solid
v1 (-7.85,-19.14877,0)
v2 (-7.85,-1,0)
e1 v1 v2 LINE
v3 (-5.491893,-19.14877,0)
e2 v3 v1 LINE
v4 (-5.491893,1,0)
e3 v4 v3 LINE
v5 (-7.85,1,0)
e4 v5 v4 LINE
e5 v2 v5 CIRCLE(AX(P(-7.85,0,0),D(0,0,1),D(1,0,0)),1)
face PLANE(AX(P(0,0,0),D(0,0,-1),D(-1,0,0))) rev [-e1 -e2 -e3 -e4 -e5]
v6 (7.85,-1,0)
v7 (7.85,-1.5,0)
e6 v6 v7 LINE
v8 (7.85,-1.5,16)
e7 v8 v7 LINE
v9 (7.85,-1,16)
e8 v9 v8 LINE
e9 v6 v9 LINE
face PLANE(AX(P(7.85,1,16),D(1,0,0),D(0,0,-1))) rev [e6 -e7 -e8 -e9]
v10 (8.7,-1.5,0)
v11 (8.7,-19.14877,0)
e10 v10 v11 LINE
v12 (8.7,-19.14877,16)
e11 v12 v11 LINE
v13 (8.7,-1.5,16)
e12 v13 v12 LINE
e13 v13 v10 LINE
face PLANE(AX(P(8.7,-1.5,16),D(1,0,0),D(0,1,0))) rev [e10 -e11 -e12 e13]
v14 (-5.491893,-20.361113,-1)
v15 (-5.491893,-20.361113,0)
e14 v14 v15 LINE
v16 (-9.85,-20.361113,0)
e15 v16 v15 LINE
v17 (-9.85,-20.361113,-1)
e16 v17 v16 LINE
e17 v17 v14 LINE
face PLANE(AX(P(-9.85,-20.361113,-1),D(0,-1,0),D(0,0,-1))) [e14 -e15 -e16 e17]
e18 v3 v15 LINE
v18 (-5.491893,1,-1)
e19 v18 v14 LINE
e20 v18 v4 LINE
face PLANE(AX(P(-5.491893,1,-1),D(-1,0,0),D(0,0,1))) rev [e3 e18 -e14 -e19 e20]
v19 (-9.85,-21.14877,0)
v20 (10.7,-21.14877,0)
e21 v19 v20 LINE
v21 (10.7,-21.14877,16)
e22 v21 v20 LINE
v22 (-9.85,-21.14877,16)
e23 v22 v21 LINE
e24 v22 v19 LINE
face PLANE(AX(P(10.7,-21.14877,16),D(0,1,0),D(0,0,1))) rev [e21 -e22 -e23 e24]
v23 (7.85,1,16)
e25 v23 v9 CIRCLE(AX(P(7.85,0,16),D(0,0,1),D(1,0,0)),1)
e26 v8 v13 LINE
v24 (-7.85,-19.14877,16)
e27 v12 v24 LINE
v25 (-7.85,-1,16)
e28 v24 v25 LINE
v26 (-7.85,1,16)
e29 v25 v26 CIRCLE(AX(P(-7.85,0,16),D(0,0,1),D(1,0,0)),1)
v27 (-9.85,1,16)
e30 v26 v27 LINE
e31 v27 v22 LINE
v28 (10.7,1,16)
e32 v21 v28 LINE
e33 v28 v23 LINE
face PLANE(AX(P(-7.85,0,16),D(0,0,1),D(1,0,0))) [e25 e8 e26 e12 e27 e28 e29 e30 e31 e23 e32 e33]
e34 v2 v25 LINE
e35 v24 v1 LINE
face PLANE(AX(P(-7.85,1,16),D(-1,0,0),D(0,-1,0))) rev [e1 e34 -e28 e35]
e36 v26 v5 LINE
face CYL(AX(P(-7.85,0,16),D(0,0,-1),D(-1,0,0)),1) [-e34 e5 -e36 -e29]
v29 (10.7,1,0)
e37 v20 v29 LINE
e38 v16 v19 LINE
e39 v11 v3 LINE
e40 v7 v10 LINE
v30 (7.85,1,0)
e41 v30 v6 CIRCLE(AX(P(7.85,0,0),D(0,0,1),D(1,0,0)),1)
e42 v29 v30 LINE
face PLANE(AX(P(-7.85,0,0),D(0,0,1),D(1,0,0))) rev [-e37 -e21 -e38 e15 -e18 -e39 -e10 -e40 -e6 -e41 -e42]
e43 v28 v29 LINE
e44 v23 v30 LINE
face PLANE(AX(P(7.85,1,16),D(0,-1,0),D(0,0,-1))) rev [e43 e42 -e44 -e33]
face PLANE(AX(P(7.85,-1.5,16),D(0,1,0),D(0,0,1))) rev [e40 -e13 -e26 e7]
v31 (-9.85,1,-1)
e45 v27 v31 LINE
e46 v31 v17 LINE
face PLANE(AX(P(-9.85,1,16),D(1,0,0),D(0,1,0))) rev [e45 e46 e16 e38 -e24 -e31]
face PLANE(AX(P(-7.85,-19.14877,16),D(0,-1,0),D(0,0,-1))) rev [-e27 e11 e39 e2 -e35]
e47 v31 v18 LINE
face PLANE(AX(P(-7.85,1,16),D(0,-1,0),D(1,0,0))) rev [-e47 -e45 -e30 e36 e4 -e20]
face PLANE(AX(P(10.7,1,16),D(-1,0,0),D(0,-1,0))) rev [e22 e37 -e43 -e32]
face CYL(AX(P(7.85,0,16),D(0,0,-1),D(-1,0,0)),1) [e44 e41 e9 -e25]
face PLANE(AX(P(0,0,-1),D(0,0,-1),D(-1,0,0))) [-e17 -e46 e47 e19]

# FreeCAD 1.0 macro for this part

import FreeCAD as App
import Part
import Sketcher

V = App.Vector
Q = App.Units.Quantity

doc = App.newDocument("Part")
body = doc.addObject("PartDesign::Body", "Body")

# Sketch on XY plane
sketch1 = body.newObject("Sketcher::SketchObject", "Sketch")
sketch1.AttachmentSupport = (doc.getObject("XY_Plane"), [""])
sketch1.MapMode = "FlatFace"
sketch1.addGeometry(Part.Circle(V(-7.8, 0, 0), V(0, 0, 1), 1), False)
sketch1.addConstraint(Sketcher.Constraint("PointOnObject", 0, 3, -1))
sketch1.addConstraint(Sketcher.Constraint("Diameter", 0, Q("2 mm")))
sketch1.addConstraint(Sketcher.Constraint("DistanceX", 0, 3, -1, 1, Q("7.85 mm")))
pad1 = body.newObject("PartDesign::Pad", "Pad")
pad1.Profile = sketch1
pad1.Length = 16
body2 = doc.addObject("PartDesign::Body", "Body001")

# Sketch on XY plane
sketch2 = body2.newObject("Sketcher::SketchObject", "Sketch001")
sketch2.AttachmentSupport = (doc.getObject("XY_Plane001"), [""])
sketch2.MapMode = "FlatFace"
sketch2.addGeometry(Part.Circle(V(7.8, 0, 0), V(0, 0, 1), 1), False)
sketch2.addConstraint(Sketcher.Constraint("PointOnObject", 0, 3, -1))
sketch2.addConstraint(Sketcher.Constraint("Diameter", 0, Q("2 mm")))
sketch2.addConstraint(Sketcher.Constraint("DistanceX", -1, 1, 0, 3, Q("7.85 mm")))
pad2 = body2.newObject("PartDesign::Pad", "Pad001")
pad2.Profile = sketch2
pad2.Length = 16
body.AllowCompound = True
doc.recompute()

boolean = body.newObject("PartDesign::Boolean", "Boolean")
boolean.Type = "Fuse"
boolean.addObjects([body2])

# Sketch on XY plane
sketch3 = body.newObject("Sketcher::SketchObject", "Sketch002")
sketch3.AttachmentSupport = (doc.getObject("XY_Plane"), [""])
sketch3.MapMode = "FlatFace"
sketch3.addGeometry(Part.LineSegment(V(10.7, 1, 0), V(7.8, 1, 0)), False)
sketch3.addGeometry(Part.LineSegment(V(7.8, 1, 0), V(7.8, -1.5, 0)), False)
sketch3.addGeometry(Part.LineSegment(V(7.8, -1.5, 0), V(8.7, -1.5, 0)), False)
sketch3.addGeometry(Part.LineSegment(V(8.7, -1.5, 0), V(8.7, -19.1, 0)), False)
sketch3.addGeometry(Part.LineSegment(V(8.7, -19.1, 0), V(-7.8, -19.1, 0)), False)
sketch3.addGeometry(Part.LineSegment(V(-7.8, -19.1, 0), V(-7.8, 1, 0)), False)
sketch3.addGeometry(Part.LineSegment(V(-7.8, 1, 0), V(-9.8, 1, 0)), False)
sketch3.addGeometry(Part.LineSegment(V(-9.8, 1, 0), V(-9.8, -21.1, 0)), False)
sketch3.addGeometry(Part.LineSegment(V(-9.8, -21.1, 0), V(10.7, -21.1, 0)), False)
sketch3.addGeometry(Part.LineSegment(V(10.7, -21.1, 0), V(10.7, 1, 0)), False)
sketch3.addConstraint(Sketcher.Constraint("Coincident", 0, 2, 1, 1))
sketch3.addConstraint(Sketcher.Constraint("Coincident", 1, 2, 2, 1))
sketch3.addConstraint(Sketcher.Constraint("Coincident", 2, 2, 3, 1))
sketch3.addConstraint(Sketcher.Constraint("Coincident", 3, 2, 4, 1))
sketch3.addConstraint(Sketcher.Constraint("Coincident", 4, 2, 5, 1))
sketch3.addConstraint(Sketcher.Constraint("Coincident", 5, 2, 6, 1))
sketch3.addConstraint(Sketcher.Constraint("Coincident", 6, 2, 7, 1))
sketch3.addConstraint(Sketcher.Constraint("Coincident", 7, 2, 8, 1))
sketch3.addConstraint(Sketcher.Constraint("Coincident", 8, 2, 9, 1))
sketch3.addConstraint(Sketcher.Constraint("Coincident", 9, 2, 0, 1))
sketch3.addConstraint(Sketcher.Constraint("Horizontal", 0))
sketch3.addConstraint(Sketcher.Constraint("Vertical", 1))
sketch3.addConstraint(Sketcher.Constraint("Horizontal", 2))
sketch3.addConstraint(Sketcher.Constraint("Vertical", 3))
sketch3.addConstraint(Sketcher.Constraint("Horizontal", 4))
sketch3.addConstraint(Sketcher.Constraint("Vertical", 5))
sketch3.addConstraint(Sketcher.Constraint("Horizontal", 6))
sketch3.addConstraint(Sketcher.Constraint("Vertical", 7))
sketch3.addConstraint(Sketcher.Constraint("Horizontal", 8))
sketch3.addConstraint(Sketcher.Constraint("Vertical", 9))
sketch3.addConstraint(Sketcher.Constraint("Symmetric", 0, 2, 5, 2, -2))
sketch3.addConstraint(Sketcher.Constraint("DistanceX", 6, 2, 6, 1, Q("2 mm")))
sketch3.addConstraint(Sketcher.Constraint("DistanceY", 1, 2, 1, 1, Q("2.5 mm")))
sketch3.addConstraint(Sketcher.Constraint("DistanceY", -1, 1, 0, 2, Q("1 mm")))
sketch3.addConstraint(Sketcher.Constraint("DistanceY", 7, 2, 4, 2, Q("2 mm")))
sketch3.addConstraint(Sketcher.Constraint("DistanceX", 3, 2, 8, 2, Q("2 mm")))
sketch3.addConstraint(Sketcher.Constraint("DistanceX", 0, 2, 0, 1, Q("2.85 mm")))
sketch3.addConstraint(Sketcher.Constraint("DistanceX", 4, 2, 4, 1, Q("16.55 mm")))
sketch3.addConstraint(Sketcher.Constraint("DistanceY", 3, 2, 3, 1, Q("17.64877 mm")))
pad3 = body.newObject("PartDesign::Pad", "Pad002")
pad3.Profile = sketch3
pad3.Length = 16

# Sketch on XY plane
sketch4 = body.newObject("Sketcher::SketchObject", "Sketch003")
sketch4.AttachmentSupport = (doc.getObject("XY_Plane"), [""])
sketch4.MapMode = "FlatFace"
sketch4.addGeometry(Part.LineSegment(V(-9.8, 1, 0), V(-9.8, -20.4, 0)), False)
sketch4.addGeometry(Part.LineSegment(V(-9.8, -20.4, 0), V(-5.5, -20.4, 0)), False)
sketch4.addGeometry(Part.LineSegment(V(-5.5, -20.4, 0), V(-5.5, 1, 0)), False)
sketch4.addGeometry(Part.LineSegment(V(-5.5, 1, 0), V(-9.8, 1, 0)), False)
sketch4.addConstraint(Sketcher.Constraint("Coincident", 0, 2, 1, 1))
sketch4.addConstraint(Sketcher.Constraint("Coincident", 1, 2, 2, 1))
sketch4.addConstraint(Sketcher.Constraint("Coincident", 2, 2, 3, 1))
sketch4.addConstraint(Sketcher.Constraint("Coincident", 3, 2, 0, 1))
sketch4.addConstraint(Sketcher.Constraint("Vertical", 0))
sketch4.addConstraint(Sketcher.Constraint("Horizontal", 1))
sketch4.addConstraint(Sketcher.Constraint("Vertical", 2))
sketch4.addConstraint(Sketcher.Constraint("Horizontal", 3))
sketch4.addConstraint(Sketcher.Constraint("DistanceY", -1, 1, 2, 2, Q("1 mm")))
sketch4.addConstraint(Sketcher.Constraint("DistanceX", 0, 2, -1, 1, Q("9.85 mm")))
sketch4.addConstraint(Sketcher.Constraint("DistanceX", 1, 1, 1, 2, Q("4.358107 mm")))
sketch4.addConstraint(Sketcher.Constraint("DistanceY", 0, 2, 0, 1, Q("21.361113 mm")))
pad4 = body.newObject("PartDesign::Pad", "Pad003")
pad4.Profile = sketch4
pad4.Length = 1
pad4.Reversed = True

doc.recompute()
